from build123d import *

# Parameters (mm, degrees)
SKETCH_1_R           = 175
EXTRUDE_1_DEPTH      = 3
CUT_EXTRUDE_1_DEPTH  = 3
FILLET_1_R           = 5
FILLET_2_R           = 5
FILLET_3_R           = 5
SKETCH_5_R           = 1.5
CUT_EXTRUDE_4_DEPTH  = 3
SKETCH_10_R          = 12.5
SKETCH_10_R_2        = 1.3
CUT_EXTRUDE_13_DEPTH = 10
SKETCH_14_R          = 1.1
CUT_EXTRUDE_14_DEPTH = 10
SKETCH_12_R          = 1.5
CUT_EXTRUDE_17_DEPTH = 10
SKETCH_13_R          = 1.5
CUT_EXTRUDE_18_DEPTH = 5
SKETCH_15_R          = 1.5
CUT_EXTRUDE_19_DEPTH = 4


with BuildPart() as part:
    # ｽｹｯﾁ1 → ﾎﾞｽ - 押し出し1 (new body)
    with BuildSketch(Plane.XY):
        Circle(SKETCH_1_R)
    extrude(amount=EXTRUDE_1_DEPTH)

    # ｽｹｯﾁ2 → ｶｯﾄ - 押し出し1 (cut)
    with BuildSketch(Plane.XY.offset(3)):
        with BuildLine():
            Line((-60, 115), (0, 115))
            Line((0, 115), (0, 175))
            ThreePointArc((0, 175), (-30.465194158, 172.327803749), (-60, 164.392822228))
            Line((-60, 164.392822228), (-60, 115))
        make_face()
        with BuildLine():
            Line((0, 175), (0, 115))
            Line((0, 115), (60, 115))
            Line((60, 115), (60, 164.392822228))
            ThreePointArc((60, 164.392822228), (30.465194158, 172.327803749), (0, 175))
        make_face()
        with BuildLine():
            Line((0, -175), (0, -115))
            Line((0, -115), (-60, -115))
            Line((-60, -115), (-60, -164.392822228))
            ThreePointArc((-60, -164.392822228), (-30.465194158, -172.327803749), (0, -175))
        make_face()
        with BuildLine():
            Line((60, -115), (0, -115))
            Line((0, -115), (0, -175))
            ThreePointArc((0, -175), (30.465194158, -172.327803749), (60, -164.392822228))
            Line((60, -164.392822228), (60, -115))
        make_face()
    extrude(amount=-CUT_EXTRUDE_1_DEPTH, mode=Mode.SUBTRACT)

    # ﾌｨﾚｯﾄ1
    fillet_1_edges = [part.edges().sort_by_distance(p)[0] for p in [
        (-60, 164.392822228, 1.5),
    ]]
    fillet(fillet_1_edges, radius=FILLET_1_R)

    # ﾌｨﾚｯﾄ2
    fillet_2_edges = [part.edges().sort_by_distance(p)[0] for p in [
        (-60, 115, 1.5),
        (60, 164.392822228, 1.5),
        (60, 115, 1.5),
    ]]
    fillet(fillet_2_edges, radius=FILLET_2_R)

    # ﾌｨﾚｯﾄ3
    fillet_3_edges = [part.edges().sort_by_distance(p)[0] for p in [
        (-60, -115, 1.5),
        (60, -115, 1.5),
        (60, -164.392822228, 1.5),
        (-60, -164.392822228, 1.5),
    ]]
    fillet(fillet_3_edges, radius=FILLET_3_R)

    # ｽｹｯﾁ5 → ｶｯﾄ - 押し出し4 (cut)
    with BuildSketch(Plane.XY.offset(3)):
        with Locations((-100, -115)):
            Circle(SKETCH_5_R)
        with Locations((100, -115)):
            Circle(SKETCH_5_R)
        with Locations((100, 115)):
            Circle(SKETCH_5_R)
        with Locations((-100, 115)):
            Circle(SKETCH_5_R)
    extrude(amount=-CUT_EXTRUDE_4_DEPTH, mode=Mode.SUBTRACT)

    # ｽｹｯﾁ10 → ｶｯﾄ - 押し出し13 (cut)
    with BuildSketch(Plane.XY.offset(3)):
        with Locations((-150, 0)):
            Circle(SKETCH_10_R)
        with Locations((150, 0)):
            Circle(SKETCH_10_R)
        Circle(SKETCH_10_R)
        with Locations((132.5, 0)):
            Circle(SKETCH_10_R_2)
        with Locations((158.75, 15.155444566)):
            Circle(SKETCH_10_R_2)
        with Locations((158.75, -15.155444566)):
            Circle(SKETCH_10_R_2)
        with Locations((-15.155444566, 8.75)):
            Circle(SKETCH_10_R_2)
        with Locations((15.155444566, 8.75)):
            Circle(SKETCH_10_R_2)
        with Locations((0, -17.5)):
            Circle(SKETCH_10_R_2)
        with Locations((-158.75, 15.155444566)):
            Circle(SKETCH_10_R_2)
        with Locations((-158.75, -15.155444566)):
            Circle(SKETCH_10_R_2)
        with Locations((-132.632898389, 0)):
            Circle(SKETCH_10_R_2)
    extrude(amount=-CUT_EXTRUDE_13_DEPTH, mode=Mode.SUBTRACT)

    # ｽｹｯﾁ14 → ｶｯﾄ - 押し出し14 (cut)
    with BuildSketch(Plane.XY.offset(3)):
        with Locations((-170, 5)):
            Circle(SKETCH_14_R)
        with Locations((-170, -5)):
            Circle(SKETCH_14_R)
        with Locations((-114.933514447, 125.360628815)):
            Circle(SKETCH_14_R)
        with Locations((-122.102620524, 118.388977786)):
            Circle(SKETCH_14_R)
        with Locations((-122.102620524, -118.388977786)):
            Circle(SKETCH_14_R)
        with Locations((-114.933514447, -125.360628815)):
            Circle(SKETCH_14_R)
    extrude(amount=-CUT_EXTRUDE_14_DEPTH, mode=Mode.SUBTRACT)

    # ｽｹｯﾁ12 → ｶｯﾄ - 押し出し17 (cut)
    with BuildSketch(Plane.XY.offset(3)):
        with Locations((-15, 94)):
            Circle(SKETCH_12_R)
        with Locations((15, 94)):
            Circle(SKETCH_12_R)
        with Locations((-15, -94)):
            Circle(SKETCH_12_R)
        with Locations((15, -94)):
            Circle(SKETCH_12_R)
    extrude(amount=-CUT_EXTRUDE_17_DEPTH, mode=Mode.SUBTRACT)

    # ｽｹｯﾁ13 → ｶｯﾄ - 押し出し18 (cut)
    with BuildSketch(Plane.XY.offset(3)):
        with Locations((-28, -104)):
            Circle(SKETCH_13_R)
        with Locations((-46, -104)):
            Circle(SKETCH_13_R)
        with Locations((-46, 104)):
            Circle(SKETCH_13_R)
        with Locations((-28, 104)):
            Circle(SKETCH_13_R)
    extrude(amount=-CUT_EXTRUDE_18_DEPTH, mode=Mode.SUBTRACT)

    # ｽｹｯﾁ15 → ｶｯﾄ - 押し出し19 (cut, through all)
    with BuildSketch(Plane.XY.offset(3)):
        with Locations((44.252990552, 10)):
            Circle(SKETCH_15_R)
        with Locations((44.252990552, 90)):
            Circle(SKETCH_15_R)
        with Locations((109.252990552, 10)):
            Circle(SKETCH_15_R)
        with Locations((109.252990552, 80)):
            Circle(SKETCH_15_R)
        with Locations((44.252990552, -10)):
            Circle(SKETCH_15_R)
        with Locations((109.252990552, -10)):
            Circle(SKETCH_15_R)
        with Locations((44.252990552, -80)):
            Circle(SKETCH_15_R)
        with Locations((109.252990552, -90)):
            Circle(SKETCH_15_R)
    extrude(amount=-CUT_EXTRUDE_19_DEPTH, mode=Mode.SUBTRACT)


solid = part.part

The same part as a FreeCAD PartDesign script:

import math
import FreeCAD as App
import Part
import Sketcher
Q = App.Units.Quantity


def edges_at(feature, points):
    """Names of the edges that pass closest to the given points."""
    edges = feature.Shape.Edges
    near = lambda p: min(range(len(edges)), key=lambda i: edges[i].distToShape(Part.Vertex(*p))[0])
    return sorted({f"Edge{near(p) + 1}" for p in points})

doc = App.newDocument("Part")
body = doc.addObject("PartDesign::Body", "Body")

sketch1 = doc.addObject("Sketcher::SketchObject", "Sketch")
body.addObject(sketch1)
sketch1.AttachmentSupport = (doc.XY_Plane, [""])
sketch1.MapMode = "FlatFace"
sketch1.addGeometry(Part.Circle(App.Vector(0, 0, 0), App.Vector(0, 0, 1), 175), False)
sketch1.addConstraint(Sketcher.Constraint("Coincident", 0, 3, -1, 1))
sketch1.addConstraint(Sketcher.Constraint("Diameter", 0, Q("350 mm")))
pad1 = doc.addObject("PartDesign::Pad", "Pad")
body.addObject(pad1)
pad1.Profile = sketch1
pad1.Length = 3

sketch2 = doc.addObject("Sketcher::SketchObject", "Sketch001")
body.addObject(sketch2)
sketch2.AttachmentSupport = (doc.XY_Plane, [""])
sketch2.MapMode = "FlatFace"
sketch2.AttachmentOffset = App.Placement(App.Vector(0, 0, 3), App.Rotation())
sketch2.addGeometry(Part.LineSegment(App.Vector(-60, 115, 0), App.Vector(60, 115, 0)), False)
sketch2.addGeometry(Part.LineSegment(App.Vector(60, 115, 0), App.Vector(60, 164.392822, 0)), False)
sketch2.addGeometry(Part.ArcOfCircle(Part.Circle(App.Vector(0, 0, 0), App.Vector(0, 0, 1), 175), math.radians(69.948957), math.radians(90)), False)
sketch2.addGeometry(Part.ArcOfCircle(Part.Circle(App.Vector(0, 0, 0), App.Vector(0, 0, 1), 175), math.radians(90), math.radians(110.051043)), False)
sketch2.addGeometry(Part.LineSegment(App.Vector(-60, 164.392822, 0), App.Vector(-60, 115, 0)), False)
sketch2.addGeometry(Part.LineSegment(App.Vector(-60, -115, 0), App.Vector(-60, -164.392822, 0)), False)
sketch2.addGeometry(Part.ArcOfCircle(Part.Circle(App.Vector(0, 0, 0), App.Vector(0, 0, 1), 175), math.radians(-110.051043), math.radians(-90)), False)
sketch2.addGeometry(Part.ArcOfCircle(Part.Circle(App.Vector(0, 0, 0), App.Vector(0, 0, 1), 175), math.radians(-90), math.radians(-69.948957)), False)
sketch2.addGeometry(Part.LineSegment(App.Vector(60, -164.392822, 0), App.Vector(60, -115, 0)), False)
sketch2.addGeometry(Part.LineSegment(App.Vector(60, -115, 0), App.Vector(-60, -115, 0)), False)
sketch2.addConstraint(Sketcher.Constraint("Coincident", 0, 2, 1, 1))
sketch2.addConstraint(Sketcher.Constraint("Coincident", 1, 2, 2, 1))
sketch2.addConstraint(Sketcher.Constraint("Tangent", 2, 2, 3, 1))
sketch2.addConstraint(Sketcher.Constraint("Coincident", 3, 2, 4, 1))
sketch2.addConstraint(Sketcher.Constraint("Coincident", 4, 2, 0, 1))
sketch2.addConstraint(Sketcher.Constraint("Coincident", 5, 2, 6, 1))
sketch2.addConstraint(Sketcher.Constraint("Tangent", 6, 2, 7, 1))
sketch2.addConstraint(Sketcher.Constraint("Coincident", 7, 2, 8, 1))
sketch2.addConstraint(Sketcher.Constraint("Coincident", 8, 2, 9, 1))
sketch2.addConstraint(Sketcher.Constraint("Coincident", 9, 2, 5, 1))
sketch2.addConstraint(Sketcher.Constraint("Horizontal", 0))
sketch2.addConstraint(Sketcher.Constraint("Vertical", 1))
sketch2.addConstraint(Sketcher.Constraint("Vertical", 4))
sketch2.addConstraint(Sketcher.Constraint("Vertical", 5))
sketch2.addConstraint(Sketcher.Constraint("Vertical", 8))
sketch2.addConstraint(Sketcher.Constraint("Horizontal", 9))
sketch2.addConstraint(Sketcher.Constraint("Coincident", 2, 3, -1, 1))
sketch2.addConstraint(Sketcher.Constraint("Coincident", 6, 3, -1, 1))
sketch2.addConstraint(Sketcher.Constraint("Equal", 2, 3))
sketch2.addConstraint(Sketcher.Constraint("Equal", 3, 6))
sketch2.addConstraint(Sketcher.Constraint("Equal", 6, 7))
sketch2.addConstraint(Sketcher.Constraint("Symmetric", 4, 2, 8, 2, -1, 1))
sketch2.addConstraint(Sketcher.Constraint("PointOnObject", 2, 2, -2))
sketch2.addConstraint(Sketcher.Constraint("PointOnObject", 6, 2, -2))
sketch2.addConstraint(Sketcher.Constraint("Horizontal", 1, 2, 3, 2))
sketch2.addConstraint(Sketcher.Constraint("Horizontal", 5, 2, 7, 2))
sketch2.addConstraint(Sketcher.Constraint("Radius", 2, Q("175 mm")))
sketch2.addConstraint(Sketcher.Constraint("DistanceX", 0, 1, 0, 2, Q("120 mm")))
sketch2.addConstraint(Sketcher.Constraint("DistanceY", -1, 1, 0, 2, Q("115 mm")))
pocket1 = doc.addObject("PartDesign::Pocket", "Pocket")
body.addObject(pocket1)
pocket1.Profile = sketch2
pocket1.Length = 3
doc.recompute()

fillet = doc.addObject("PartDesign::Fillet", "Fillet")
body.addObject(fillet)
fillet.Base = (pocket1, edges_at(pocket1, [(-60, 164.393, 1.5)]))
fillet.Radius = 5
doc.recompute()

fillet2 = doc.addObject("PartDesign::Fillet", "Fillet001")
body.addObject(fillet2)
fillet2.Base = (fillet, edges_at(fillet, [(-60, 115, 1.5), (60, 164.393, 1.5), (60, 115, 1.5)]))
fillet2.Radius = 5
doc.recompute()

fillet3 = doc.addObject("PartDesign::Fillet", "Fillet002")
body.addObject(fillet3)
fillet3.Base = (fillet2, edges_at(fillet2, [
    (-60, -115, 1.5),
    (60, -115, 1.5),
    (60, -164.393, 1.5),
    (-60, -164.393, 1.5),
]))
fillet3.Radius = 5

sketch3 = doc.addObject("Sketcher::SketchObject", "Sketch002")
body.addObject(sketch3)
sketch3.AttachmentSupport = (doc.XY_Plane, [""])
sketch3.MapMode = "FlatFace"
sketch3.AttachmentOffset = App.Placement(App.Vector(0, 0, 3), App.Rotation())
sketch3.addGeometry(Part.Circle(App.Vector(-100, -115, 0), App.Vector(0, 0, 1), 1.5), False)
sketch3.addGeometry(Part.Circle(App.Vector(100, -115, 0), App.Vector(0, 0, 1), 1.5), False)
sketch3.addGeometry(Part.Circle(App.Vector(100, 115, 0), App.Vector(0, 0, 1), 1.5), False)
sketch3.addGeometry(Part.Circle(App.Vector(-100, 115, 0), App.Vector(0, 0, 1), 1.5), False)
sketch3.addConstraint(Sketcher.Constraint("Equal", 0, 1))
sketch3.addConstraint(Sketcher.Constraint("Equal", 1, 2))
sketch3.addConstraint(Sketcher.Constraint("Equal", 2, 3))
sketch3.addConstraint(Sketcher.Constraint("Symmetric", 0, 3, 2, 3, -1, 1))
sketch3.addConstraint(Sketcher.Constraint("Symmetric", 1, 3, 3, 3, -1, 1))
sketch3.addConstraint(Sketcher.Constraint("Symmetric", 0, 3, 1, 3, -2))
sketch3.addConstraint(Sketcher.Constraint("Diameter", 0, Q("3 mm")))
sketch3.addConstraint(Sketcher.Constraint("DistanceX", 0, 3, -1, 1, Q("100 mm")))
sketch3.addConstraint(Sketcher.Constraint("DistanceY", 0, 3, -1, 1, Q("115 mm")))
pocket2 = doc.addObject("PartDesign::Pocket", "Pocket001")
body.addObject(pocket2)
pocket2.Profile = sketch3
pocket2.Length = 3

sketch4 = doc.addObject("Sketcher::SketchObject", "Sketch003")
body.addObject(sketch4)
sketch4.AttachmentSupport = (doc.XY_Plane, [""])
sketch4.MapMode = "FlatFace"
sketch4.AttachmentOffset = App.Placement(App.Vector(0, 0, 3), App.Rotation())
sketch4.addGeometry(Part.Circle(App.Vector(-150, 0, 0), App.Vector(0, 0, 1), 12.5), False)
sketch4.addGeometry(Part.Circle(App.Vector(150, 0, 0), App.Vector(0, 0, 1), 12.5), False)
sketch4.addGeometry(Part.Circle(App.Vector(0, 0, 0), App.Vector(0, 0, 1), 12.5), False)
sketch4.addGeometry(Part.Circle(App.Vector(132.5, 0, 0), App.Vector(0, 0, 1), 1.3), False)
sketch4.addGeometry(Part.Circle(App.Vector(158.75, 15.155445, 0), App.Vector(0, 0, 1), 1.3), False)
sketch4.addGeometry(Part.Circle(App.Vector(158.75, -15.155445, 0), App.Vector(0, 0, 1), 1.3), False)
sketch4.addGeometry(Part.Circle(App.Vector(-15.155445, 8.75, 0), App.Vector(0, 0, 1), 1.3), False)
sketch4.addGeometry(Part.Circle(App.Vector(15.155445, 8.75, 0), App.Vector(0, 0, 1), 1.3), False)
sketch4.addGeometry(Part.Circle(App.Vector(0, -17.5, 0), App.Vector(0, 0, 1), 1.3), False)
sketch4.addGeometry(Part.Circle(App.Vector(-158.75, 15.155445, 0), App.Vector(0, 0, 1), 1.3), False)
sketch4.addGeometry(Part.Circle(App.Vector(-158.75, -15.155445, 0), App.Vector(0, 0, 1), 1.3), False)
sketch4.addGeometry(Part.Circle(App.Vector(-132.632898, 0, 0), App.Vector(0, 0, 1), 1.3), False)
sketch4.addConstraint(Sketcher.Constraint("Coincident", 2, 3, -1, 1))
sketch4.addConstraint(Sketcher.Constraint("Equal", 0, 1))
sketch4.addConstraint(Sketcher.Constraint("Equal", 1, 2))
sketch4.addConstraint(Sketcher.Constraint("Equal", 3, 4))
sketch4.addConstraint(Sketcher.Constraint("Equal", 4, 5))
sketch4.addConstraint(Sketcher.Constraint("Equal", 5, 6))
sketch4.addConstraint(Sketcher.Constraint("Equal", 6, 7))
sketch4.addConstraint(Sketcher.Constraint("Equal", 7, 8))
sketch4.addConstraint(Sketcher.Constraint("Equal", 8, 9))
sketch4.addConstraint(Sketcher.Constraint("Equal", 9, 10))
sketch4.addConstraint(Sketcher.Constraint("Equal", 10, 11))
sketch4.addConstraint(Sketcher.Constraint("Symmetric", 0, 3, 1, 3, -1, 1))
sketch4.addConstraint(Sketcher.Constraint("Symmetric", 5, 3, 9, 3, -1, 1))
sketch4.addConstraint(Sketcher.Constraint("Symmetric", 4, 3, 10, 3, -1, 1))
sketch4.addConstraint(Sketcher.Constraint("Symmetric", 6, 3, 7, 3, -2))
sketch4.addConstraint(Sketcher.Constraint("Symmetric", 4, 3, 9, 3, -2))
sketch4.addConstraint(Sketcher.Constraint("PointOnObject", 0, 3, -1))
sketch4.addConstraint(Sketcher.Constraint("PointOnObject", 3, 3, -1))
sketch4.addConstraint(Sketcher.Constraint("PointOnObject", 8, 3, -2))
sketch4.addConstraint(Sketcher.Constraint("PointOnObject", 11, 3, -1))
sketch4.addConstraint(Sketcher.Constraint("Diameter", 0, Q("25 mm")))
sketch4.addConstraint(Sketcher.Constraint("Diameter", 3, Q("2.6 mm")))
sketch4.addConstraint(Sketcher.Constraint("DistanceX", 0, 3, -1, 1, Q("150 mm")))
sketch4.addConstraint(Sketcher.Constraint("DistanceX", -1, 1, 3, 3, Q("132.5 mm")))
sketch4.addConstraint(Sketcher.Constraint("DistanceY", 8, 3, -1, 1, Q("17.5 mm")))
sketch4.addConstraint(Sketcher.Constraint("DistanceX", -1, 1, 4, 3, Q("158.75 mm")))
sketch4.addConstraint(Sketcher.Constraint("DistanceY", -1, 1, 6, 3, Q("8.75 mm")))
sketch4.addConstraint(Sketcher.Constraint("DistanceX", 11, 3, -1, 1, Q("132.632898 mm")))
sketch4.addConstraint(Sketcher.Constraint("DistanceY", 5, 3, 4, 3, Q("30.310889 mm")))
sketch4.addConstraint(Sketcher.Constraint("DistanceX", 6, 3, 7, 3, Q("30.310889 mm")))
pocket3 = doc.addObject("PartDesign::Pocket", "Pocket002")
body.addObject(pocket3)
pocket3.Profile = sketch4
pocket3.Length = 10

sketch5 = doc.addObject("Sketcher::SketchObject", "Sketch004")
body.addObject(sketch5)
sketch5.AttachmentSupport = (doc.XY_Plane, [""])
sketch5.MapMode = "FlatFace"
sketch5.AttachmentOffset = App.Placement(App.Vector(0, 0, 3), App.Rotation())
sketch5.addGeometry(Part.Circle(App.Vector(-170, 5, 0), App.Vector(0, 0, 1), 1.1), False)
sketch5.addGeometry(Part.Circle(App.Vector(-170, -5, 0), App.Vector(0, 0, 1), 1.1), False)
sketch5.addGeometry(Part.Circle(App.Vector(-114.933514, 125.360629, 0), App.Vector(0, 0, 1), 1.1), False)
sketch5.addGeometry(Part.Circle(App.Vector(-122.102621, 118.388978, 0), App.Vector(0, 0, 1), 1.1), False)
sketch5.addGeometry(Part.Circle(App.Vector(-122.102621, -118.388978, 0), App.Vector(0, 0, 1), 1.1), False)
sketch5.addGeometry(Part.Circle(App.Vector(-114.933514, -125.360629, 0), App.Vector(0, 0, 1), 1.1), False)
sketch5.addConstraint(Sketcher.Constraint("Equal", 0, 1))
sketch5.addConstraint(Sketcher.Constraint("Equal", 1, 2))
sketch5.addConstraint(Sketcher.Constraint("Equal", 2, 3))
sketch5.addConstraint(Sketcher.Constraint("Equal", 3, 4))
sketch5.addConstraint(Sketcher.Constraint("Equal", 4, 5))
sketch5.addConstraint(Sketcher.Constraint("Symmetric", 0, 3, 1, 3, -1))
sketch5.addConstraint(Sketcher.Constraint("Symmetric", 3, 3, 4, 3, -1))
sketch5.addConstraint(Sketcher.Constraint("Symmetric", 2, 3, 5, 3, -1))
sketch5.addConstraint(Sketcher.Constraint("Diameter", 0, Q("2.2 mm")))
sketch5.addConstraint(Sketcher.Constraint("DistanceX", 0, 3, -1, 1, Q("170 mm")))
sketch5.addConstraint(Sketcher.Constraint("DistanceY", -1, 1, 0, 3, Q("5 mm")))
sketch5.addConstraint(Sketcher.Constraint("DistanceY", -1, 1, 2, 3, Q("125.360629 mm")))
sketch5.addConstraint(Sketcher.Constraint("DistanceX", 3, 3, -1, 1, Q("122.102621 mm")))
sketch5.addConstraint(Sketcher.Constraint("DistanceY", 3, 3, 2, 3, Q("6.971651 mm")))
sketch5.addConstraint(Sketcher.Constraint("DistanceX", 2, 3, -1, 1, Q("114.933514 mm")))
pocket4 = doc.addObject("PartDesign::Pocket", "Pocket003")
body.addObject(pocket4)
pocket4.Profile = sketch5
pocket4.Length = 10

sketch6 = doc.addObject("Sketcher::SketchObject", "Sketch005")
body.addObject(sketch6)
sketch6.AttachmentSupport = (doc.XY_Plane, [""])
sketch6.MapMode = "FlatFace"
sketch6.AttachmentOffset = App.Placement(App.Vector(0, 0, 3), App.Rotation())
sketch6.addGeometry(Part.Circle(App.Vector(-15, 94, 0), App.Vector(0, 0, 1), 1.5), False)
sketch6.addGeometry(Part.Circle(App.Vector(15, 94, 0), App.Vector(0, 0, 1), 1.5), False)
sketch6.addGeometry(Part.Circle(App.Vector(-15, -94, 0), App.Vector(0, 0, 1), 1.5), False)
sketch6.addGeometry(Part.Circle(App.Vector(15, -94, 0), App.Vector(0, 0, 1), 1.5), False)
sketch6.addConstraint(Sketcher.Constraint("Equal", 0, 1))
sketch6.addConstraint(Sketcher.Constraint("Equal", 1, 2))
sketch6.addConstraint(Sketcher.Constraint("Equal", 2, 3))
sketch6.addConstraint(Sketcher.Constraint("Symmetric", 1, 3, 2, 3, -1, 1))
sketch6.addConstraint(Sketcher.Constraint("Symmetric", 0, 3, 3, 3, -1, 1))
sketch6.addConstraint(Sketcher.Constraint("Symmetric", 0, 3, 1, 3, -2))
sketch6.addConstraint(Sketcher.Constraint("Diameter", 0, Q("3 mm")))
sketch6.addConstraint(Sketcher.Constraint("DistanceX", 0, 3, -1, 1, Q("15 mm")))
sketch6.addConstraint(Sketcher.Constraint("DistanceY", -1, 1, 0, 3, Q("94 mm")))
pocket5 = doc.addObject("PartDesign::Pocket", "Pocket004")
body.addObject(pocket5)
pocket5.Profile = sketch6
pocket5.Length = 10

sketch7 = doc.addObject("Sketcher::SketchObject", "Sketch006")
body.addObject(sketch7)
sketch7.AttachmentSupport = (doc.XY_Plane, [""])
sketch7.MapMode = "FlatFace"
sketch7.AttachmentOffset = App.Placement(App.Vector(0, 0, 3), App.Rotation())
sketch7.addGeometry(Part.Circle(App.Vector(-28, -104, 0), App.Vector(0, 0, 1), 1.5), False)
sketch7.addGeometry(Part.Circle(App.Vector(-46, -104, 0), App.Vector(0, 0, 1), 1.5), False)
sketch7.addGeometry(Part.Circle(App.Vector(-46, 104, 0), App.Vector(0, 0, 1), 1.5), False)
sketch7.addGeometry(Part.Circle(App.Vector(-28, 104, 0), App.Vector(0, 0, 1), 1.5), False)
sketch7.addConstraint(Sketcher.Constraint("Equal", 0, 1))
sketch7.addConstraint(Sketcher.Constraint("Equal", 1, 2))
sketch7.addConstraint(Sketcher.Constraint("Equal", 2, 3))
sketch7.addConstraint(Sketcher.Constraint("Symmetric", 1, 3, 2, 3, -1))
sketch7.addConstraint(Sketcher.Constraint("Symmetric", 0, 3, 3, 3, -1))
sketch7.addConstraint(Sketcher.Constraint("Horizontal", 0, 3, 1, 3))
sketch7.addConstraint(Sketcher.Constraint("Diameter", 0, Q("3 mm")))
sketch7.addConstraint(Sketcher.Constraint("DistanceX", 0, 3, -1, 1, Q("28 mm")))
sketch7.addConstraint(Sketcher.Constraint("DistanceY", 0, 3, -1, 1, Q("104 mm")))
sketch7.addConstraint(Sketcher.Constraint("DistanceX", 1, 3, -1, 1, Q("46 mm")))
pocket6 = doc.addObject("PartDesign::Pocket", "Pocket005")
body.addObject(pocket6)
pocket6.Profile = sketch7
pocket6.Length = 5

sketch8 = doc.addObject("Sketcher::SketchObject", "Sketch007")
body.addObject(sketch8)
sketch8.AttachmentSupport = (doc.XY_Plane, [""])
sketch8.MapMode = "FlatFace"
sketch8.AttachmentOffset = App.Placement(App.Vector(0, 0, 3), App.Rotation())
sketch8.addGeometry(Part.Circle(App.Vector(44.252991, 10, 0), App.Vector(0, 0, 1), 1.5), False)
sketch8.addGeometry(Part.Circle(App.Vector(44.252991, 90, 0), App.Vector(0, 0, 1), 1.5), False)
sketch8.addGeometry(Part.Circle(App.Vector(109.252991, 10, 0), App.Vector(0, 0, 1), 1.5), False)
sketch8.addGeometry(Part.Circle(App.Vector(109.252991, 80, 0), App.Vector(0, 0, 1), 1.5), False)
sketch8.addGeometry(Part.Circle(App.Vector(44.252991, -10, 0), App.Vector(0, 0, 1), 1.5), False)
sketch8.addGeometry(Part.Circle(App.Vector(109.252991, -10, 0), App.Vector(0, 0, 1), 1.5), False)
sketch8.addGeometry(Part.Circle(App.Vector(44.252991, -80, 0), App.Vector(0, 0, 1), 1.5), False)
sketch8.addGeometry(Part.Circle(App.Vector(109.252991, -90, 0), App.Vector(0, 0, 1), 1.5), False)
sketch8.addConstraint(Sketcher.Constraint("Equal", 0, 1))
sketch8.addConstraint(Sketcher.Constraint("Equal", 1, 2))
sketch8.addConstraint(Sketcher.Constraint("Equal", 2, 3))
sketch8.addConstraint(Sketcher.Constraint("Equal", 3, 4))
sketch8.addConstraint(Sketcher.Constraint("Equal", 4, 5))
sketch8.addConstraint(Sketcher.Constraint("Equal", 5, 6))
sketch8.addConstraint(Sketcher.Constraint("Equal", 6, 7))
sketch8.addConstraint(Sketcher.Constraint("Symmetric", 0, 3, 4, 3, -1))
sketch8.addConstraint(Sketcher.Constraint("Symmetric", 2, 3, 5, 3, -1))
sketch8.addConstraint(Sketcher.Constraint("Horizontal", 0, 3, 2, 3))
sketch8.addConstraint(Sketcher.Constraint("Vertical", 0, 3, 1, 3))
sketch8.addConstraint(Sketcher.Constraint("Vertical", 2, 3, 3, 3))
sketch8.addConstraint(Sketcher.Constraint("Vertical", 4, 3, 6, 3))
sketch8.addConstraint(Sketcher.Constraint("Vertical", 5, 3, 7, 3))
sketch8.addConstraint(Sketcher.Constraint("Diameter", 0, Q("3 mm")))
sketch8.addConstraint(Sketcher.Constraint("DistanceY", -1, 1, 0, 3, Q("10 mm")))
sketch8.addConstraint(Sketcher.Constraint("DistanceY", -1, 1, 1, 3, Q("90 mm")))
sketch8.addConstraint(Sketcher.Constraint("DistanceY", -1, 1, 3, 3, Q("80 mm")))
sketch8.addConstraint(Sketcher.Constraint("DistanceY", 6, 3, -1, 1, Q("80 mm")))
sketch8.addConstraint(Sketcher.Constraint("DistanceY", 7, 3, -1, 1, Q("90 mm")))
sketch8.addConstraint(Sketcher.Constraint("DistanceX", 0, 3, 2, 3, Q("65 mm")))
sketch8.addConstraint(Sketcher.Constraint("DistanceX", -1, 1, 0, 3, Q("44.252991 mm")))
pocket7 = doc.addObject("PartDesign::Pocket", "Pocket006")
body.addObject(pocket7)
pocket7.Profile = sketch8
pocket7.Type = "ThroughAll"

doc.recompute()
